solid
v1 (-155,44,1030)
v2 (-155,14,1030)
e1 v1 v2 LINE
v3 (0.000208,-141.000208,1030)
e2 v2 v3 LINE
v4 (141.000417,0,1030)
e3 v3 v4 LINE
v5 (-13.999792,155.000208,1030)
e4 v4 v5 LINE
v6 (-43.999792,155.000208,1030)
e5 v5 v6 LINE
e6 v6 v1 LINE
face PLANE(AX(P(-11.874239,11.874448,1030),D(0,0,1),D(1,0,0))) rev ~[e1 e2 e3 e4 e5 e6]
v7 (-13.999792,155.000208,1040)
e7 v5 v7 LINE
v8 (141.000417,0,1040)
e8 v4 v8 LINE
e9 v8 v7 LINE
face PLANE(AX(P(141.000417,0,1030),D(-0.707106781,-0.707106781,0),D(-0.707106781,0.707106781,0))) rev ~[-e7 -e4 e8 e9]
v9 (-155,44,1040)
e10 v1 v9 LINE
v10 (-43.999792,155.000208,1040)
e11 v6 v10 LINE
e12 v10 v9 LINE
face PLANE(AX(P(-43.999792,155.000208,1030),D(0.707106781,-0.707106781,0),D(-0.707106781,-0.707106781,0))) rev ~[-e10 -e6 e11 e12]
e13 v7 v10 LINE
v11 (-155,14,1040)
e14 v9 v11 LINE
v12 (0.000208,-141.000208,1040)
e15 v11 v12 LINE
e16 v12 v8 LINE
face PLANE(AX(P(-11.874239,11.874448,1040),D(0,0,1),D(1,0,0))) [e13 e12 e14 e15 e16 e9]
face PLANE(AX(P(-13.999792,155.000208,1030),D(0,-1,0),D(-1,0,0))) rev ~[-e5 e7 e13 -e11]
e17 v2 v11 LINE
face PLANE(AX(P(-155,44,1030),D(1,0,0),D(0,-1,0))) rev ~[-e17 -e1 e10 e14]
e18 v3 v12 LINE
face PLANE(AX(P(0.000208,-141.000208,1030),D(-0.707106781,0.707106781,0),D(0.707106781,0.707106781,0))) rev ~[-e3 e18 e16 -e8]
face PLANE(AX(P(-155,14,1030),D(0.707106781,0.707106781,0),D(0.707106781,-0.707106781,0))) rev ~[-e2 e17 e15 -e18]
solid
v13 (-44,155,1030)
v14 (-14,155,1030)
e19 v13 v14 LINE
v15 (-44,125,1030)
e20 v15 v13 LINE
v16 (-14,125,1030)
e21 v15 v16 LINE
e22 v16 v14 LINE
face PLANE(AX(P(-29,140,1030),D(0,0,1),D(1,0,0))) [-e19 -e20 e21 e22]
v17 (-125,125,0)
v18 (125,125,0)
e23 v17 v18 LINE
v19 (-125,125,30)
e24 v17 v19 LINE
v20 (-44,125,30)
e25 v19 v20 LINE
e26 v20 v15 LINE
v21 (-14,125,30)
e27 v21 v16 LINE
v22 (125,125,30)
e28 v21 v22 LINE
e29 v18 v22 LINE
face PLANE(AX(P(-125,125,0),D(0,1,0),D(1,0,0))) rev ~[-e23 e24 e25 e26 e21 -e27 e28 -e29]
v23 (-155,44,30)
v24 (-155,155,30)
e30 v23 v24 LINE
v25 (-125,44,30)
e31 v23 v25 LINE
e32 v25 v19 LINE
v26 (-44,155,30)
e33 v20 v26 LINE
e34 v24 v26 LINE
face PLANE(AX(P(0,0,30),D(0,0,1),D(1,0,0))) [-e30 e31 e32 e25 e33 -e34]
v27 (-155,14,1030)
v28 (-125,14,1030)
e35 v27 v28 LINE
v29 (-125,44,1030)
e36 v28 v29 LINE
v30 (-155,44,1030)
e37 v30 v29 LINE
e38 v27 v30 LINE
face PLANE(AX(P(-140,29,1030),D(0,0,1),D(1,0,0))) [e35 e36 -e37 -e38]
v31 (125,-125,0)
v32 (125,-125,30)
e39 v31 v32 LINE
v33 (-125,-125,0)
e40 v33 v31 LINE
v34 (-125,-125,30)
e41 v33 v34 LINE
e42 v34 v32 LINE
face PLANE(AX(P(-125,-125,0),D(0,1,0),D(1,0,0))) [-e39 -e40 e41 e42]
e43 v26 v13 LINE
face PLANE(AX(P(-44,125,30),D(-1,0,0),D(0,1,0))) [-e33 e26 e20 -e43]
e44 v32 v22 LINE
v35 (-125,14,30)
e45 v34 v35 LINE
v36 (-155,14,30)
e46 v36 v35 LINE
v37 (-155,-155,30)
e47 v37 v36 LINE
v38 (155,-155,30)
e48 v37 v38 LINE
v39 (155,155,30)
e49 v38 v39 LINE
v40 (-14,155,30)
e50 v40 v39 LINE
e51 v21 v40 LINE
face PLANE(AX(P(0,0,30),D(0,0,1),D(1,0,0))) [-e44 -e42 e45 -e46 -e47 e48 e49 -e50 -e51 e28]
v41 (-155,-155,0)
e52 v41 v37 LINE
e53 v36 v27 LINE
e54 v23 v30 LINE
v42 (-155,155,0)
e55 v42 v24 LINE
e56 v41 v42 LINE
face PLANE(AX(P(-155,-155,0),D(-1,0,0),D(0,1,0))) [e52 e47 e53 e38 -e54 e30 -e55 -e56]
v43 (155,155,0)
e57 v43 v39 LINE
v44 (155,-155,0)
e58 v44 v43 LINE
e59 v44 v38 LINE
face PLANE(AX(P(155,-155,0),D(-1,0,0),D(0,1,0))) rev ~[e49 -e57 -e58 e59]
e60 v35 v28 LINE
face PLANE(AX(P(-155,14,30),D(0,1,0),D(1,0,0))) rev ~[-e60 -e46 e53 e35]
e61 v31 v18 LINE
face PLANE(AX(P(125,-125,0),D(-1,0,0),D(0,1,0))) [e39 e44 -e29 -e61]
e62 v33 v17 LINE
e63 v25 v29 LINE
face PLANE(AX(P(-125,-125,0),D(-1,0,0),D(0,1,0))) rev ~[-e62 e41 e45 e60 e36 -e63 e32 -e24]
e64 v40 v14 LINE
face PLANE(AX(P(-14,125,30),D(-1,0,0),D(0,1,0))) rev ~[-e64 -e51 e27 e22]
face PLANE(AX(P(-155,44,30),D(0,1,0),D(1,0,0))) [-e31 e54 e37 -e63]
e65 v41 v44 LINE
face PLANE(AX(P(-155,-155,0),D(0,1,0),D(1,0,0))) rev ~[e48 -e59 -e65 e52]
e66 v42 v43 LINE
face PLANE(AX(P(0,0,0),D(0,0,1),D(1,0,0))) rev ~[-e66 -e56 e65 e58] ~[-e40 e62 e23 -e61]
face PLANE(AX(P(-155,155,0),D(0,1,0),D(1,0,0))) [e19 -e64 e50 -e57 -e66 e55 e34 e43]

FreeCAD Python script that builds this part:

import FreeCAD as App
import Part
import Sketcher
from FreeCAD import Vector
Q = App.Units.Quantity

doc = App.newDocument("Part")
body = doc.addObject("PartDesign::Body", "Body")

# Sketch on XY plane
sketch1 = doc.addObject("Sketcher::SketchObject", "Sketch")
body.addObject(sketch1)
sketch1.AttachmentSupport = (doc.XY_Plane, [""])
sketch1.MapMode = "FlatFace"
sketch1.addGeometry(Part.LineSegment(Vector(-155, 155, 0), Vector(-155, -155, 0)), False)
sketch1.addGeometry(Part.LineSegment(Vector(-155, -155, 0), Vector(155, -155, 0)), False)
sketch1.addGeometry(Part.LineSegment(Vector(155, -155, 0), Vector(155, 155, 0)), False)
sketch1.addGeometry(Part.LineSegment(Vector(155, 155, 0), Vector(-155, 155, 0)), False)
sketch1.addGeometry(Part.LineSegment(Vector(125, -125, 0), Vector(-125, -125, 0)), False)
sketch1.addGeometry(Part.LineSegment(Vector(-125, -125, 0), Vector(-125, 125, 0)), False)
sketch1.addGeometry(Part.LineSegment(Vector(-125, 125, 0), Vector(125, 125, 0)), False)
sketch1.addGeometry(Part.LineSegment(Vector(125, 125, 0), Vector(125, -125, 0)), False)
sketch1.addConstraint(Sketcher.Constraint("Coincident", 0, 2, 1, 1))
sketch1.addConstraint(Sketcher.Constraint("Coincident", 1, 2, 2, 1))
sketch1.addConstraint(Sketcher.Constraint("Coincident", 2, 2, 3, 1))
sketch1.addConstraint(Sketcher.Constraint("Coincident", 3, 2, 0, 1))
sketch1.addConstraint(Sketcher.Constraint("Coincident", 4, 2, 5, 1))
sketch1.addConstraint(Sketcher.Constraint("Coincident", 5, 2, 6, 1))
sketch1.addConstraint(Sketcher.Constraint("Coincident", 6, 2, 7, 1))
sketch1.addConstraint(Sketcher.Constraint("Coincident", 7, 2, 4, 1))
sketch1.addConstraint(Sketcher.Constraint("Vertical", 0))
sketch1.addConstraint(Sketcher.Constraint("Horizontal", 1))
sketch1.addConstraint(Sketcher.Constraint("Vertical", 2))
sketch1.addConstraint(Sketcher.Constraint("Horizontal", 3))
sketch1.addConstraint(Sketcher.Constraint("Horizontal", 4))
sketch1.addConstraint(Sketcher.Constraint("Vertical", 5))
sketch1.addConstraint(Sketcher.Constraint("Horizontal", 6))
sketch1.addConstraint(Sketcher.Constraint("Vertical", 7))
sketch1.addConstraint(Sketcher.Constraint("Symmetric", 0, 2, 2, 2, -1, 1))
sketch1.addConstraint(Sketcher.Constraint("Symmetric", 4, 2, 6, 2, -1, 1))
sketch1.addConstraint(Sketcher.Constraint("Equal", 3, 0))
sketch1.addConstraint(Sketcher.Constraint("Equal", 6, 5))
sketch1.addConstraint(Sketcher.Constraint("DistanceX", 1, 1, 1, 2, Q("310 mm")))
sketch1.addConstraint(Sketcher.Constraint("DistanceX", 4, 2, 4, 1, Q("250 mm")))
pad1 = doc.addObject("PartDesign::Pad", "Pad")
body.addObject(pad1)
pad1.Profile = sketch1
pad1.Length = 30

# Sketch on XY plane
sketch2 = doc.addObject("Sketcher::SketchObject", "Sketch001")
body.addObject(sketch2)
sketch2.AttachmentSupport = (doc.XY_Plane, [""])
sketch2.MapMode = "FlatFace"
sketch2.AttachmentOffset = App.Placement(Vector(0, 0, 30), App.Rotation())
sketch2.addGeometry(Part.LineSegment(Vector(-44, 155, 0), Vector(-44, 125, 0)), False)
sketch2.addGeometry(Part.LineSegment(Vector(-44, 125, 0), Vector(-14, 125, 0)), False)
sketch2.addGeometry(Part.LineSegment(Vector(-14, 125, 0), Vector(-14, 155, 0)), False)
sketch2.addGeometry(Part.LineSegment(Vector(-14, 155, 0), Vector(-44, 155, 0)), False)
sketch2.addGeometry(Part.LineSegment(Vector(-155, 44, 0), Vector(-155, 14, 0)), False)
sketch2.addGeometry(Part.LineSegment(Vector(-155, 14, 0), Vector(-125, 14, 0)), False)
sketch2.addGeometry(Part.LineSegment(Vector(-125, 14, 0), Vector(-125, 44, 0)), False)
sketch2.addGeometry(Part.LineSegment(Vector(-125, 44, 0), Vector(-155, 44, 0)), False)
sketch2.addConstraint(Sketcher.Constraint("Coincident", 0, 2, 1, 1))
sketch2.addConstraint(Sketcher.Constraint("Coincident", 1, 2, 2, 1))
sketch2.addConstraint(Sketcher.Constraint("Coincident", 2, 2, 3, 1))
sketch2.addConstraint(Sketcher.Constraint("Coincident", 3, 2, 0, 1))
sketch2.addConstraint(Sketcher.Constraint("Coincident", 4, 2, 5, 1))
sketch2.addConstraint(Sketcher.Constraint("Coincident", 5, 2, 6, 1))
sketch2.addConstraint(Sketcher.Constraint("Coincident", 6, 2, 7, 1))
sketch2.addConstraint(Sketcher.Constraint("Coincident", 7, 2, 4, 1))
sketch2.addConstraint(Sketcher.Constraint("Vertical", 0))
sketch2.addConstraint(Sketcher.Constraint("Horizontal", 1))
sketch2.addConstraint(Sketcher.Constraint("Vertical", 2))
sketch2.addConstraint(Sketcher.Constraint("Horizontal", 3))
sketch2.addConstraint(Sketcher.Constraint("Vertical", 4))
sketch2.addConstraint(Sketcher.Constraint("Horizontal", 5))
sketch2.addConstraint(Sketcher.Constraint("Vertical", 6))
sketch2.addConstraint(Sketcher.Constraint("Horizontal", 7))
sketch2.addConstraint(Sketcher.Constraint("Equal", 3, 5))
sketch2.addConstraint(Sketcher.Constraint("Equal", 7, 0))
sketch2.addConstraint(Sketcher.Constraint("Equal", 2, 4))
sketch2.addConstraint(Sketcher.Constraint("DistanceX", 1, 1, 1, 2, Q("30 mm")))
sketch2.addConstraint(Sketcher.Constraint("DistanceX", 0, 2, -1, 1, Q("44 mm")))
sketch2.addConstraint(Sketcher.Constraint("DistanceY", -1, 1, 0, 2, Q("125 mm")))
sketch2.addConstraint(Sketcher.Constraint("DistanceX", 4, 2, -1, 1, Q("155 mm")))
sketch2.addConstraint(Sketcher.Constraint("DistanceY", -1, 1, 4, 2, Q("14 mm")))
pad2 = doc.addObject("PartDesign::Pad", "Pad001")
body.addObject(pad2)
pad2.Profile = sketch2
pad2.Length = 1000
body2 = doc.addObject("PartDesign::Body", "Body001")

# Sketch on XY plane
sketch3 = doc.addObject("Sketcher::SketchObject", "Sketch002")
body2.addObject(sketch3)
sketch3.AttachmentSupport = (doc.getObject("XY_Plane001"), [""])
sketch3.MapMode = "FlatFace"
sketch3.AttachmentOffset = App.Placement(Vector(0, 0, 1030), App.Rotation())
sketch3.addGeometry(Part.LineSegment(Vector(-44, 155, 0), Vector(-155, 44, 0)), False)
sketch3.addGeometry(Part.LineSegment(Vector(-155, 44, 0), Vector(-155, 14, 0)), False)
sketch3.addGeometry(Part.LineSegment(Vector(-155, 14, 0), Vector(0, -141, 0)), False)
sketch3.addGeometry(Part.LineSegment(Vector(0, -141, 0), Vector(141, 0, 0)), False)
sketch3.addGeometry(Part.LineSegment(Vector(141, 0, 0), Vector(-14, 155, 0)), False)
sketch3.addGeometry(Part.LineSegment(Vector(-14, 155, 0), Vector(-44, 155, 0)), False)
sketch3.addConstraint(Sketcher.Constraint("Coincident", 0, 2, 1, 1))
sketch3.addConstraint(Sketcher.Constraint("Coincident", 1, 2, 2, 1))
sketch3.addConstraint(Sketcher.Constraint("Coincident", 2, 2, 3, 1))
sketch3.addConstraint(Sketcher.Constraint("Coincident", 3, 2, 4, 1))
sketch3.addConstraint(Sketcher.Constraint("Coincident", 4, 2, 5, 1))
sketch3.addConstraint(Sketcher.Constraint("Coincident", 5, 2, 0, 1))
sketch3.addConstraint(Sketcher.Constraint("Vertical", 1))
sketch3.addConstraint(Sketcher.Constraint("Horizontal", 5))
sketch3.addConstraint(Sketcher.Constraint("PointOnObject", 3, 2, -1))
sketch3.addConstraint(Sketcher.Constraint("Perpendicular", 0, 2))
sketch3.addConstraint(Sketcher.Constraint("Perpendicular", 2, 3))
sketch3.addConstraint(Sketcher.Constraint("Perpendicular", 3, 4))
sketch3.addConstraint(Sketcher.Constraint("Equal", 5, 1))
sketch3.addConstraint(Sketcher.Constraint("Equal", 2, 4))
sketch3.addConstraint(Sketcher.Constraint("DistanceX", 5, 2, 5, 1, Q("30 mm")))
sketch3.addConstraint(Sketcher.Constraint("DistanceX", 0, 2, -1, 1, Q("155 mm")))
sketch3.addConstraint(Sketcher.Constraint("DistanceY", -1, 1, 0, 2, Q("44 mm")))
sketch3.addConstraint(Sketcher.Constraint("Distance", 0, Q("156.978 mm")))
pad3 = doc.addObject("PartDesign::Pad", "Pad002")
body2.addObject(pad3)
pad3.Profile = sketch3
pad3.Length = 10

doc.recompute()
